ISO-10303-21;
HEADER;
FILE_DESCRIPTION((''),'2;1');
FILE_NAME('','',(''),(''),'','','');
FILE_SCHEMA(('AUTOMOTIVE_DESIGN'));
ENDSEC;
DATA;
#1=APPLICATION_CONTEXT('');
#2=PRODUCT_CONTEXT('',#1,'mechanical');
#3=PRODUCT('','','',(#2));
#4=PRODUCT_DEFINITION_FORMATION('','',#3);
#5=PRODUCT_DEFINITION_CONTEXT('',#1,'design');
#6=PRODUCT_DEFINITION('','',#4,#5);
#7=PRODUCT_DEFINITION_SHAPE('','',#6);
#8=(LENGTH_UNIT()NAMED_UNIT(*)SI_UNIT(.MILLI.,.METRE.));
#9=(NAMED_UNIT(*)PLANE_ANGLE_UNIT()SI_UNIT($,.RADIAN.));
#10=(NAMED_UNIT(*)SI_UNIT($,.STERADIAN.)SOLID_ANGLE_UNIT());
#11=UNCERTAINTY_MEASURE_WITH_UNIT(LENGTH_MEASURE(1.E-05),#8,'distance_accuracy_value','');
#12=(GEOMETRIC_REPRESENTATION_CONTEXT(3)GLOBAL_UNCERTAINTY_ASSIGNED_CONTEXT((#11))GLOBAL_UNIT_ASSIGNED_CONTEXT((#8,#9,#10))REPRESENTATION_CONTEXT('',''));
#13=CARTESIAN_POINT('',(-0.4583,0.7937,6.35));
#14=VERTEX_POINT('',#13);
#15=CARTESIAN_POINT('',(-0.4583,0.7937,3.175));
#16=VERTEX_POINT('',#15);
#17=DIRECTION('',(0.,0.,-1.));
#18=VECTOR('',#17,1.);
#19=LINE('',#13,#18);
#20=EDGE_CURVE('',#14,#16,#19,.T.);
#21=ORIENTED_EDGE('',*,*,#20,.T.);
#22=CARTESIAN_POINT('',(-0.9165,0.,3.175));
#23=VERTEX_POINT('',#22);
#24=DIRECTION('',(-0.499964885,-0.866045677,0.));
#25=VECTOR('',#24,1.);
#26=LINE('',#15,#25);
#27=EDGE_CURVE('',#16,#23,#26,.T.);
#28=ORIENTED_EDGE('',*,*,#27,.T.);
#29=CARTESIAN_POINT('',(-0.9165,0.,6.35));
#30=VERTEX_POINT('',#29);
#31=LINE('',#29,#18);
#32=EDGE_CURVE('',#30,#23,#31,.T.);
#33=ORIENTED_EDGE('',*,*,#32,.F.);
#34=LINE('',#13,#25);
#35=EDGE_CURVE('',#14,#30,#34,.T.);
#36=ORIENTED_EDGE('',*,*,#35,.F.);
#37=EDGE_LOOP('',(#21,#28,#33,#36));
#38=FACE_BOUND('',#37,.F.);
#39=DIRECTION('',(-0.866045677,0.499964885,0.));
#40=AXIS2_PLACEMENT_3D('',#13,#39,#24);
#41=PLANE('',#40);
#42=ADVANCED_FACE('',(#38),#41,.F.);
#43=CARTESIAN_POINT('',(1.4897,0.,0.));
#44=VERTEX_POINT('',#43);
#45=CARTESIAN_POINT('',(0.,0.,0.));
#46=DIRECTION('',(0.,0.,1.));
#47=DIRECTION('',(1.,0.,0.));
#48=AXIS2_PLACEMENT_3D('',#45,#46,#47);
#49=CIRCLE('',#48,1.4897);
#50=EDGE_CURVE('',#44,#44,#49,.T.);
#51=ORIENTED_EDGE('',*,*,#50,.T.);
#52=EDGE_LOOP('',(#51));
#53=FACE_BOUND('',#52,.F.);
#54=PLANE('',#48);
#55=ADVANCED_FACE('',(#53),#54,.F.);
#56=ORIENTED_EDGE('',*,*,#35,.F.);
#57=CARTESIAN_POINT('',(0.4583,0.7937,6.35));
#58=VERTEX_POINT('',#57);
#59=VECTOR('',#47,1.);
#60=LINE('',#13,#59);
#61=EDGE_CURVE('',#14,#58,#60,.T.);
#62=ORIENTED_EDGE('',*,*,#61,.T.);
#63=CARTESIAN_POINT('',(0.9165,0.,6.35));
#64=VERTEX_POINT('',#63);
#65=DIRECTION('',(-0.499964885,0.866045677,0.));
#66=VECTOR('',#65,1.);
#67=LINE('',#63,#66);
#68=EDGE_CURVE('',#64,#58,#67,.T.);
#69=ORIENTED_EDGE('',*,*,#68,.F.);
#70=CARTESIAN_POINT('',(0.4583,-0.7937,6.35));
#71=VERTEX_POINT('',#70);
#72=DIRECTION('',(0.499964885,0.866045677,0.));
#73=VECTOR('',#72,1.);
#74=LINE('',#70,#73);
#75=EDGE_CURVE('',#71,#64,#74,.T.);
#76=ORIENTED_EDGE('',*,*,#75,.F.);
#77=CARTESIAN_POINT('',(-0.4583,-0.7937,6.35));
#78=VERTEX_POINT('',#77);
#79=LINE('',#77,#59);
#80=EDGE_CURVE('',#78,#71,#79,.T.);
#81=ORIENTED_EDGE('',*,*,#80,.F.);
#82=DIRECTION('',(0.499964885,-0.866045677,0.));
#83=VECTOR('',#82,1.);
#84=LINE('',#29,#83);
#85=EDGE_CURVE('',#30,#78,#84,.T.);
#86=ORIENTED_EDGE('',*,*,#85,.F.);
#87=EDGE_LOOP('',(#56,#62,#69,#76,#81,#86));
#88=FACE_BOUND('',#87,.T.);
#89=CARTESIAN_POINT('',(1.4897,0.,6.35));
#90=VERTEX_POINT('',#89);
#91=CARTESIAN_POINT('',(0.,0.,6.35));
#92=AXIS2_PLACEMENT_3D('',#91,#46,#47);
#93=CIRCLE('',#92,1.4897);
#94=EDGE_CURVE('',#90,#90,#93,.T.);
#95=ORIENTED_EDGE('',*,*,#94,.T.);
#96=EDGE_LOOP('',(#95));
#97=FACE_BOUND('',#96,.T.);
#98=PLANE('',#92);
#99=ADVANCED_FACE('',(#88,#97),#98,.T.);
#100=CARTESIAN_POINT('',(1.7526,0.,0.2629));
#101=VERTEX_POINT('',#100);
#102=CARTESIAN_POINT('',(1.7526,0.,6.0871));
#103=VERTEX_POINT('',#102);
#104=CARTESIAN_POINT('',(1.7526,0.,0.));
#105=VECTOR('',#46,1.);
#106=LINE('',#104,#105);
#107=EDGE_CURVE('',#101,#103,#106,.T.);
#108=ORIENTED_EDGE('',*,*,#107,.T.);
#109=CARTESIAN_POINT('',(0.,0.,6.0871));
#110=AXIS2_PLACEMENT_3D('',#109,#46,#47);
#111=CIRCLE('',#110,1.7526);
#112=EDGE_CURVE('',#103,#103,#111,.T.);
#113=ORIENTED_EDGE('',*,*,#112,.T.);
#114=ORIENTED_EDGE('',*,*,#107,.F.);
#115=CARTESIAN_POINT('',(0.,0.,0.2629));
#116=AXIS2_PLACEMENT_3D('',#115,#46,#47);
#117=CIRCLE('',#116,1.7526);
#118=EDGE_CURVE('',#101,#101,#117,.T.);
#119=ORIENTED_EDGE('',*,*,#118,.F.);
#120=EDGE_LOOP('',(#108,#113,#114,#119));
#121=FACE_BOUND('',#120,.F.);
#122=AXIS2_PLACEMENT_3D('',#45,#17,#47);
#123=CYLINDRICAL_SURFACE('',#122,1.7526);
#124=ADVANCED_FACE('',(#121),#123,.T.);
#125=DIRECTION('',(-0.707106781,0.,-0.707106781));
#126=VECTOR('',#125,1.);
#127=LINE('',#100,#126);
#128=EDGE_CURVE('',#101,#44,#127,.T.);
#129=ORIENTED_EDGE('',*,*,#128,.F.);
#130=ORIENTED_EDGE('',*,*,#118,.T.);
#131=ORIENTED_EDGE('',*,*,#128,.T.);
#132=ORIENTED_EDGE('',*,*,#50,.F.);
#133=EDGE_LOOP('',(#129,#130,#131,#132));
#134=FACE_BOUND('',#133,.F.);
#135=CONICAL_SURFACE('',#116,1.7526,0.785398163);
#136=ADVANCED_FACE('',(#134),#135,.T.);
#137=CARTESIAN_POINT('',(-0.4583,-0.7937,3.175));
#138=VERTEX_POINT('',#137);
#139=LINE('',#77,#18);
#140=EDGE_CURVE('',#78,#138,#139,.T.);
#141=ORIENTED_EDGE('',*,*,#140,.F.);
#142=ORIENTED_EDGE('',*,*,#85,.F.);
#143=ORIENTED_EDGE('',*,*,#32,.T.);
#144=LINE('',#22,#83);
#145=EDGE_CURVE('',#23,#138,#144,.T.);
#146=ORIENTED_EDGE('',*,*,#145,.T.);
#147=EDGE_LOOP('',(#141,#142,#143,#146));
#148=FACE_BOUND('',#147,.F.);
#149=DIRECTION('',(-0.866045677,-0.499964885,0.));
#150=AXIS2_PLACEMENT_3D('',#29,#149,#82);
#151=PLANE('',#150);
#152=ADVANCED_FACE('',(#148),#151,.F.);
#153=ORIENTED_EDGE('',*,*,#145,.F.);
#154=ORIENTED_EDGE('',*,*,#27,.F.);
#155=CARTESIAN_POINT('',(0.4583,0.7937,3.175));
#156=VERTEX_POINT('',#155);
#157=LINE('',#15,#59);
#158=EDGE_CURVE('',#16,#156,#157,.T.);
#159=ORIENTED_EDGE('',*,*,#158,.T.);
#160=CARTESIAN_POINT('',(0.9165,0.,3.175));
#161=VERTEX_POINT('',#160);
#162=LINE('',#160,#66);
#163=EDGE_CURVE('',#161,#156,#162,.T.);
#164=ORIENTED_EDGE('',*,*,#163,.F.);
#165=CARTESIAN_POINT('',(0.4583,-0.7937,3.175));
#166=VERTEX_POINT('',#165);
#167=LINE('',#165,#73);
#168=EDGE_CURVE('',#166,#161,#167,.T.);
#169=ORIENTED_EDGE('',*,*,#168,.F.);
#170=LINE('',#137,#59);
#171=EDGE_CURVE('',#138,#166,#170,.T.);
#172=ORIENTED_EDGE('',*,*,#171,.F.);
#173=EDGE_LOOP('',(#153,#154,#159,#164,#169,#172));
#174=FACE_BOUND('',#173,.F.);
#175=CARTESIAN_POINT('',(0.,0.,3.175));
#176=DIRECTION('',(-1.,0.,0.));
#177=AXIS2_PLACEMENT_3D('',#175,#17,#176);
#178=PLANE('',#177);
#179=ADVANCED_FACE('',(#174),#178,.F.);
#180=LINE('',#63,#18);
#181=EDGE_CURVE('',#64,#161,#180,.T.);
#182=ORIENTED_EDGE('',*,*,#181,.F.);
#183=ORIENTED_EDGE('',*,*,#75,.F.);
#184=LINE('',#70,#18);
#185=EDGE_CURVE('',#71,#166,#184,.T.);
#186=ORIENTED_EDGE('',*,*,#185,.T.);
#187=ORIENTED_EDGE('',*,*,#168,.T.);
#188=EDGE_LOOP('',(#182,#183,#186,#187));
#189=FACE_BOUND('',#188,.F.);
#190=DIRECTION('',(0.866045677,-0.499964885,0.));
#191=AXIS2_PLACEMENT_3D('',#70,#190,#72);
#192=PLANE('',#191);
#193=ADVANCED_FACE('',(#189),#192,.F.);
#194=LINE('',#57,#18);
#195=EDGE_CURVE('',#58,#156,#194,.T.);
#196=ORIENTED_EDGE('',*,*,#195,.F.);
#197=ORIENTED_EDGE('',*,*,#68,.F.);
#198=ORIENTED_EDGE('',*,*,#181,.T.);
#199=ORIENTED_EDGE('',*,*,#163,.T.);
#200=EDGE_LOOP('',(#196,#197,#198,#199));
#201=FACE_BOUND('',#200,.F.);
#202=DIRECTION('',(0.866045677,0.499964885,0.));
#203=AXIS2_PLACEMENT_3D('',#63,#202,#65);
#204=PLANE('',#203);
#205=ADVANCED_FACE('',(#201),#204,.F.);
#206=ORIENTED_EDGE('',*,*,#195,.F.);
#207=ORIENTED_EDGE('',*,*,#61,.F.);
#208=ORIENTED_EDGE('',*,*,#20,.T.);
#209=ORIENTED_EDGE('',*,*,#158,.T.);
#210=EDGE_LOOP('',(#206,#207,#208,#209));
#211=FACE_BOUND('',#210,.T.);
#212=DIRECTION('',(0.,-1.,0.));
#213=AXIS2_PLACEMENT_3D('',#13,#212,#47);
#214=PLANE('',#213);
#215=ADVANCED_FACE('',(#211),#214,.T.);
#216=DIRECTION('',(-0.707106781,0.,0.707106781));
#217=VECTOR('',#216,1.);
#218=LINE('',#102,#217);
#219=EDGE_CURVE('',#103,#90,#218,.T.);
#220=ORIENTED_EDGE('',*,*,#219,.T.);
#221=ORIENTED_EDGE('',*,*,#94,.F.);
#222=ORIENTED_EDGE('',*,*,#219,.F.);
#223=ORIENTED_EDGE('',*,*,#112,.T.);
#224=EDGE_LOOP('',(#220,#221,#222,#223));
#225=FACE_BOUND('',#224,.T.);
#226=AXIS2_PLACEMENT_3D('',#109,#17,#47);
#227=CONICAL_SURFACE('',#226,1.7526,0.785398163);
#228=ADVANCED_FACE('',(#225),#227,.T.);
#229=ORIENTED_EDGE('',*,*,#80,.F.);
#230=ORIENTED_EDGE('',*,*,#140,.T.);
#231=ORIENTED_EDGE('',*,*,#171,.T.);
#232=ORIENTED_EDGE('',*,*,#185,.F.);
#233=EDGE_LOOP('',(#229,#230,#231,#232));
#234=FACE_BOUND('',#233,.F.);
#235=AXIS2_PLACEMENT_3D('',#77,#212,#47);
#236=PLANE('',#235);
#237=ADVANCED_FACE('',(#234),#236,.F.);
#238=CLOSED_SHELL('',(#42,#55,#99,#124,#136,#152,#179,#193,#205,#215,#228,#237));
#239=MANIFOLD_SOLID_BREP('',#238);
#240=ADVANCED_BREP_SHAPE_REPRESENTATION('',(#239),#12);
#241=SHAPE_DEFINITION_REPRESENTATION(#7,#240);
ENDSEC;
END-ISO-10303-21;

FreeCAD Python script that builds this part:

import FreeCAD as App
import Part
import Sketcher
from FreeCAD import Vector
Q = App.Units.Quantity


def edges_at(feature, points):
    """Names of the edges that pass closest to the given points."""
    edges = feature.Shape.Edges
    near = lambda p: min(range(len(edges)), key=lambda i: edges[i].distToShape(Part.Vertex(*p))[0])
    return sorted({f"Edge{near(p) + 1}" for p in points})


def add_polygon(sketch, points):
    """Adds a closed chain of lines whose ends are joined by coincident constraints."""
    first, n = sketch.GeometryCount, len(points)
    for a, b in zip(points, points[1:] + points[:1]):
        sketch.addGeometry(Part.LineSegment(App.Vector(*a, 0), App.Vector(*b, 0)), False)
    for i in range(n):
        sketch.addConstraint(Sketcher.Constraint("Coincident", first + i, 2, first + (i + 1) % n, 1))

doc = App.newDocument("Part")
params = doc.addObject("Spreadsheet::Sheet", "Params")
for row, (alias, value) in enumerate([
    ("sketch1_diameter", "0.138 in"),
    ("pad1_length", "0.25 in"),
    ("chamfer_size", "0.2629 mm"),
    ("pocket1_length", "0.125 in"),
], start=1):
    params.set(f"A{row}", alias)
    params.set(f"B{row}", "=" + value)
    params.setAlias(f"B{row}", alias)

body = doc.addObject("PartDesign::Body", "Body")

# Sketch on XY plane
sketch1 = doc.addObject("Sketcher::SketchObject", "Sketch")
body.addObject(sketch1)
sketch1.AttachmentSupport = (doc.XY_Plane, [""])
sketch1.MapMode = "FlatFace"
sketch1.addGeometry(Part.Circle(Vector(0, 0, 0), Vector(0, 0, 1), 1.7526), False)
sketch1.addConstraint([
    Sketcher.Constraint("Coincident", 0, 3, -1, 1),
    Sketcher.Constraint("Diameter", 0, Q("0.138 in")),
])
sketch1.setExpression("Constraints[1]", "Params.sketch1_diameter")
pad1 = doc.addObject("PartDesign::Pad", "Pad")
body.addObject(pad1)
pad1.Profile = sketch1
pad1.setExpression("Length", "Params.pad1_length")
doc.recompute()

chamfer = doc.addObject("PartDesign::Chamfer", "Chamfer")
body.addObject(chamfer)
chamfer.Base = (pad1, edges_at(pad1, [(-1.753, 0, 0), (-1.753, 0, 6.35)]))
chamfer.setExpression("Size", "Params.chamfer_size")

# Sketch on XY plane
sketch2 = doc.addObject("Sketcher::SketchObject", "Sketch001")
body.addObject(sketch2)
sketch2.AttachmentSupport = (doc.XY_Plane, [""])
sketch2.MapMode = "FlatFace"
sketch2.AttachmentOffset = App.Placement(Vector(0, 0, 0.25 * 25.4), App.Rotation())
add_polygon(sketch2, [(0.4583, 0.7937), (-0.4583, 0.7937), (-0.9165, 0), (-0.4583, -0.7937), (0.4583, -0.7937), (0.9165, 0)])  # lines 0-5
sketch2.addConstraint([
    Sketcher.Constraint("Horizontal", 0),
    Sketcher.Constraint("Horizontal", 3),
    Sketcher.Constraint("Symmetric", 0, 2, 3, 2, -1, 1),
    Sketcher.Constraint("Symmetric", 1, 2, 4, 2, -1, 1),
    Sketcher.Constraint("PointOnObject", 1, 2, -1),
    Sketcher.Constraint("Parallel", 2, 5),
    Sketcher.Constraint("Vertical", 0, 2, 2, 2),
    Sketcher.Constraint("DistanceY", -1, 1, 0, 2, Q("0.031248 in")),
    Sketcher.Constraint("DistanceX", 0, 2, 0, 1, 0.9166),
    Sketcher.Constraint("Distance", 1, 0.9165),
])
pocket1 = doc.addObject("PartDesign::Pocket", "Pocket")
body.addObject(pocket1)
pocket1.Profile = sketch2
pocket1.setExpression("Length", "Params.pocket1_length")

doc.recompute()
